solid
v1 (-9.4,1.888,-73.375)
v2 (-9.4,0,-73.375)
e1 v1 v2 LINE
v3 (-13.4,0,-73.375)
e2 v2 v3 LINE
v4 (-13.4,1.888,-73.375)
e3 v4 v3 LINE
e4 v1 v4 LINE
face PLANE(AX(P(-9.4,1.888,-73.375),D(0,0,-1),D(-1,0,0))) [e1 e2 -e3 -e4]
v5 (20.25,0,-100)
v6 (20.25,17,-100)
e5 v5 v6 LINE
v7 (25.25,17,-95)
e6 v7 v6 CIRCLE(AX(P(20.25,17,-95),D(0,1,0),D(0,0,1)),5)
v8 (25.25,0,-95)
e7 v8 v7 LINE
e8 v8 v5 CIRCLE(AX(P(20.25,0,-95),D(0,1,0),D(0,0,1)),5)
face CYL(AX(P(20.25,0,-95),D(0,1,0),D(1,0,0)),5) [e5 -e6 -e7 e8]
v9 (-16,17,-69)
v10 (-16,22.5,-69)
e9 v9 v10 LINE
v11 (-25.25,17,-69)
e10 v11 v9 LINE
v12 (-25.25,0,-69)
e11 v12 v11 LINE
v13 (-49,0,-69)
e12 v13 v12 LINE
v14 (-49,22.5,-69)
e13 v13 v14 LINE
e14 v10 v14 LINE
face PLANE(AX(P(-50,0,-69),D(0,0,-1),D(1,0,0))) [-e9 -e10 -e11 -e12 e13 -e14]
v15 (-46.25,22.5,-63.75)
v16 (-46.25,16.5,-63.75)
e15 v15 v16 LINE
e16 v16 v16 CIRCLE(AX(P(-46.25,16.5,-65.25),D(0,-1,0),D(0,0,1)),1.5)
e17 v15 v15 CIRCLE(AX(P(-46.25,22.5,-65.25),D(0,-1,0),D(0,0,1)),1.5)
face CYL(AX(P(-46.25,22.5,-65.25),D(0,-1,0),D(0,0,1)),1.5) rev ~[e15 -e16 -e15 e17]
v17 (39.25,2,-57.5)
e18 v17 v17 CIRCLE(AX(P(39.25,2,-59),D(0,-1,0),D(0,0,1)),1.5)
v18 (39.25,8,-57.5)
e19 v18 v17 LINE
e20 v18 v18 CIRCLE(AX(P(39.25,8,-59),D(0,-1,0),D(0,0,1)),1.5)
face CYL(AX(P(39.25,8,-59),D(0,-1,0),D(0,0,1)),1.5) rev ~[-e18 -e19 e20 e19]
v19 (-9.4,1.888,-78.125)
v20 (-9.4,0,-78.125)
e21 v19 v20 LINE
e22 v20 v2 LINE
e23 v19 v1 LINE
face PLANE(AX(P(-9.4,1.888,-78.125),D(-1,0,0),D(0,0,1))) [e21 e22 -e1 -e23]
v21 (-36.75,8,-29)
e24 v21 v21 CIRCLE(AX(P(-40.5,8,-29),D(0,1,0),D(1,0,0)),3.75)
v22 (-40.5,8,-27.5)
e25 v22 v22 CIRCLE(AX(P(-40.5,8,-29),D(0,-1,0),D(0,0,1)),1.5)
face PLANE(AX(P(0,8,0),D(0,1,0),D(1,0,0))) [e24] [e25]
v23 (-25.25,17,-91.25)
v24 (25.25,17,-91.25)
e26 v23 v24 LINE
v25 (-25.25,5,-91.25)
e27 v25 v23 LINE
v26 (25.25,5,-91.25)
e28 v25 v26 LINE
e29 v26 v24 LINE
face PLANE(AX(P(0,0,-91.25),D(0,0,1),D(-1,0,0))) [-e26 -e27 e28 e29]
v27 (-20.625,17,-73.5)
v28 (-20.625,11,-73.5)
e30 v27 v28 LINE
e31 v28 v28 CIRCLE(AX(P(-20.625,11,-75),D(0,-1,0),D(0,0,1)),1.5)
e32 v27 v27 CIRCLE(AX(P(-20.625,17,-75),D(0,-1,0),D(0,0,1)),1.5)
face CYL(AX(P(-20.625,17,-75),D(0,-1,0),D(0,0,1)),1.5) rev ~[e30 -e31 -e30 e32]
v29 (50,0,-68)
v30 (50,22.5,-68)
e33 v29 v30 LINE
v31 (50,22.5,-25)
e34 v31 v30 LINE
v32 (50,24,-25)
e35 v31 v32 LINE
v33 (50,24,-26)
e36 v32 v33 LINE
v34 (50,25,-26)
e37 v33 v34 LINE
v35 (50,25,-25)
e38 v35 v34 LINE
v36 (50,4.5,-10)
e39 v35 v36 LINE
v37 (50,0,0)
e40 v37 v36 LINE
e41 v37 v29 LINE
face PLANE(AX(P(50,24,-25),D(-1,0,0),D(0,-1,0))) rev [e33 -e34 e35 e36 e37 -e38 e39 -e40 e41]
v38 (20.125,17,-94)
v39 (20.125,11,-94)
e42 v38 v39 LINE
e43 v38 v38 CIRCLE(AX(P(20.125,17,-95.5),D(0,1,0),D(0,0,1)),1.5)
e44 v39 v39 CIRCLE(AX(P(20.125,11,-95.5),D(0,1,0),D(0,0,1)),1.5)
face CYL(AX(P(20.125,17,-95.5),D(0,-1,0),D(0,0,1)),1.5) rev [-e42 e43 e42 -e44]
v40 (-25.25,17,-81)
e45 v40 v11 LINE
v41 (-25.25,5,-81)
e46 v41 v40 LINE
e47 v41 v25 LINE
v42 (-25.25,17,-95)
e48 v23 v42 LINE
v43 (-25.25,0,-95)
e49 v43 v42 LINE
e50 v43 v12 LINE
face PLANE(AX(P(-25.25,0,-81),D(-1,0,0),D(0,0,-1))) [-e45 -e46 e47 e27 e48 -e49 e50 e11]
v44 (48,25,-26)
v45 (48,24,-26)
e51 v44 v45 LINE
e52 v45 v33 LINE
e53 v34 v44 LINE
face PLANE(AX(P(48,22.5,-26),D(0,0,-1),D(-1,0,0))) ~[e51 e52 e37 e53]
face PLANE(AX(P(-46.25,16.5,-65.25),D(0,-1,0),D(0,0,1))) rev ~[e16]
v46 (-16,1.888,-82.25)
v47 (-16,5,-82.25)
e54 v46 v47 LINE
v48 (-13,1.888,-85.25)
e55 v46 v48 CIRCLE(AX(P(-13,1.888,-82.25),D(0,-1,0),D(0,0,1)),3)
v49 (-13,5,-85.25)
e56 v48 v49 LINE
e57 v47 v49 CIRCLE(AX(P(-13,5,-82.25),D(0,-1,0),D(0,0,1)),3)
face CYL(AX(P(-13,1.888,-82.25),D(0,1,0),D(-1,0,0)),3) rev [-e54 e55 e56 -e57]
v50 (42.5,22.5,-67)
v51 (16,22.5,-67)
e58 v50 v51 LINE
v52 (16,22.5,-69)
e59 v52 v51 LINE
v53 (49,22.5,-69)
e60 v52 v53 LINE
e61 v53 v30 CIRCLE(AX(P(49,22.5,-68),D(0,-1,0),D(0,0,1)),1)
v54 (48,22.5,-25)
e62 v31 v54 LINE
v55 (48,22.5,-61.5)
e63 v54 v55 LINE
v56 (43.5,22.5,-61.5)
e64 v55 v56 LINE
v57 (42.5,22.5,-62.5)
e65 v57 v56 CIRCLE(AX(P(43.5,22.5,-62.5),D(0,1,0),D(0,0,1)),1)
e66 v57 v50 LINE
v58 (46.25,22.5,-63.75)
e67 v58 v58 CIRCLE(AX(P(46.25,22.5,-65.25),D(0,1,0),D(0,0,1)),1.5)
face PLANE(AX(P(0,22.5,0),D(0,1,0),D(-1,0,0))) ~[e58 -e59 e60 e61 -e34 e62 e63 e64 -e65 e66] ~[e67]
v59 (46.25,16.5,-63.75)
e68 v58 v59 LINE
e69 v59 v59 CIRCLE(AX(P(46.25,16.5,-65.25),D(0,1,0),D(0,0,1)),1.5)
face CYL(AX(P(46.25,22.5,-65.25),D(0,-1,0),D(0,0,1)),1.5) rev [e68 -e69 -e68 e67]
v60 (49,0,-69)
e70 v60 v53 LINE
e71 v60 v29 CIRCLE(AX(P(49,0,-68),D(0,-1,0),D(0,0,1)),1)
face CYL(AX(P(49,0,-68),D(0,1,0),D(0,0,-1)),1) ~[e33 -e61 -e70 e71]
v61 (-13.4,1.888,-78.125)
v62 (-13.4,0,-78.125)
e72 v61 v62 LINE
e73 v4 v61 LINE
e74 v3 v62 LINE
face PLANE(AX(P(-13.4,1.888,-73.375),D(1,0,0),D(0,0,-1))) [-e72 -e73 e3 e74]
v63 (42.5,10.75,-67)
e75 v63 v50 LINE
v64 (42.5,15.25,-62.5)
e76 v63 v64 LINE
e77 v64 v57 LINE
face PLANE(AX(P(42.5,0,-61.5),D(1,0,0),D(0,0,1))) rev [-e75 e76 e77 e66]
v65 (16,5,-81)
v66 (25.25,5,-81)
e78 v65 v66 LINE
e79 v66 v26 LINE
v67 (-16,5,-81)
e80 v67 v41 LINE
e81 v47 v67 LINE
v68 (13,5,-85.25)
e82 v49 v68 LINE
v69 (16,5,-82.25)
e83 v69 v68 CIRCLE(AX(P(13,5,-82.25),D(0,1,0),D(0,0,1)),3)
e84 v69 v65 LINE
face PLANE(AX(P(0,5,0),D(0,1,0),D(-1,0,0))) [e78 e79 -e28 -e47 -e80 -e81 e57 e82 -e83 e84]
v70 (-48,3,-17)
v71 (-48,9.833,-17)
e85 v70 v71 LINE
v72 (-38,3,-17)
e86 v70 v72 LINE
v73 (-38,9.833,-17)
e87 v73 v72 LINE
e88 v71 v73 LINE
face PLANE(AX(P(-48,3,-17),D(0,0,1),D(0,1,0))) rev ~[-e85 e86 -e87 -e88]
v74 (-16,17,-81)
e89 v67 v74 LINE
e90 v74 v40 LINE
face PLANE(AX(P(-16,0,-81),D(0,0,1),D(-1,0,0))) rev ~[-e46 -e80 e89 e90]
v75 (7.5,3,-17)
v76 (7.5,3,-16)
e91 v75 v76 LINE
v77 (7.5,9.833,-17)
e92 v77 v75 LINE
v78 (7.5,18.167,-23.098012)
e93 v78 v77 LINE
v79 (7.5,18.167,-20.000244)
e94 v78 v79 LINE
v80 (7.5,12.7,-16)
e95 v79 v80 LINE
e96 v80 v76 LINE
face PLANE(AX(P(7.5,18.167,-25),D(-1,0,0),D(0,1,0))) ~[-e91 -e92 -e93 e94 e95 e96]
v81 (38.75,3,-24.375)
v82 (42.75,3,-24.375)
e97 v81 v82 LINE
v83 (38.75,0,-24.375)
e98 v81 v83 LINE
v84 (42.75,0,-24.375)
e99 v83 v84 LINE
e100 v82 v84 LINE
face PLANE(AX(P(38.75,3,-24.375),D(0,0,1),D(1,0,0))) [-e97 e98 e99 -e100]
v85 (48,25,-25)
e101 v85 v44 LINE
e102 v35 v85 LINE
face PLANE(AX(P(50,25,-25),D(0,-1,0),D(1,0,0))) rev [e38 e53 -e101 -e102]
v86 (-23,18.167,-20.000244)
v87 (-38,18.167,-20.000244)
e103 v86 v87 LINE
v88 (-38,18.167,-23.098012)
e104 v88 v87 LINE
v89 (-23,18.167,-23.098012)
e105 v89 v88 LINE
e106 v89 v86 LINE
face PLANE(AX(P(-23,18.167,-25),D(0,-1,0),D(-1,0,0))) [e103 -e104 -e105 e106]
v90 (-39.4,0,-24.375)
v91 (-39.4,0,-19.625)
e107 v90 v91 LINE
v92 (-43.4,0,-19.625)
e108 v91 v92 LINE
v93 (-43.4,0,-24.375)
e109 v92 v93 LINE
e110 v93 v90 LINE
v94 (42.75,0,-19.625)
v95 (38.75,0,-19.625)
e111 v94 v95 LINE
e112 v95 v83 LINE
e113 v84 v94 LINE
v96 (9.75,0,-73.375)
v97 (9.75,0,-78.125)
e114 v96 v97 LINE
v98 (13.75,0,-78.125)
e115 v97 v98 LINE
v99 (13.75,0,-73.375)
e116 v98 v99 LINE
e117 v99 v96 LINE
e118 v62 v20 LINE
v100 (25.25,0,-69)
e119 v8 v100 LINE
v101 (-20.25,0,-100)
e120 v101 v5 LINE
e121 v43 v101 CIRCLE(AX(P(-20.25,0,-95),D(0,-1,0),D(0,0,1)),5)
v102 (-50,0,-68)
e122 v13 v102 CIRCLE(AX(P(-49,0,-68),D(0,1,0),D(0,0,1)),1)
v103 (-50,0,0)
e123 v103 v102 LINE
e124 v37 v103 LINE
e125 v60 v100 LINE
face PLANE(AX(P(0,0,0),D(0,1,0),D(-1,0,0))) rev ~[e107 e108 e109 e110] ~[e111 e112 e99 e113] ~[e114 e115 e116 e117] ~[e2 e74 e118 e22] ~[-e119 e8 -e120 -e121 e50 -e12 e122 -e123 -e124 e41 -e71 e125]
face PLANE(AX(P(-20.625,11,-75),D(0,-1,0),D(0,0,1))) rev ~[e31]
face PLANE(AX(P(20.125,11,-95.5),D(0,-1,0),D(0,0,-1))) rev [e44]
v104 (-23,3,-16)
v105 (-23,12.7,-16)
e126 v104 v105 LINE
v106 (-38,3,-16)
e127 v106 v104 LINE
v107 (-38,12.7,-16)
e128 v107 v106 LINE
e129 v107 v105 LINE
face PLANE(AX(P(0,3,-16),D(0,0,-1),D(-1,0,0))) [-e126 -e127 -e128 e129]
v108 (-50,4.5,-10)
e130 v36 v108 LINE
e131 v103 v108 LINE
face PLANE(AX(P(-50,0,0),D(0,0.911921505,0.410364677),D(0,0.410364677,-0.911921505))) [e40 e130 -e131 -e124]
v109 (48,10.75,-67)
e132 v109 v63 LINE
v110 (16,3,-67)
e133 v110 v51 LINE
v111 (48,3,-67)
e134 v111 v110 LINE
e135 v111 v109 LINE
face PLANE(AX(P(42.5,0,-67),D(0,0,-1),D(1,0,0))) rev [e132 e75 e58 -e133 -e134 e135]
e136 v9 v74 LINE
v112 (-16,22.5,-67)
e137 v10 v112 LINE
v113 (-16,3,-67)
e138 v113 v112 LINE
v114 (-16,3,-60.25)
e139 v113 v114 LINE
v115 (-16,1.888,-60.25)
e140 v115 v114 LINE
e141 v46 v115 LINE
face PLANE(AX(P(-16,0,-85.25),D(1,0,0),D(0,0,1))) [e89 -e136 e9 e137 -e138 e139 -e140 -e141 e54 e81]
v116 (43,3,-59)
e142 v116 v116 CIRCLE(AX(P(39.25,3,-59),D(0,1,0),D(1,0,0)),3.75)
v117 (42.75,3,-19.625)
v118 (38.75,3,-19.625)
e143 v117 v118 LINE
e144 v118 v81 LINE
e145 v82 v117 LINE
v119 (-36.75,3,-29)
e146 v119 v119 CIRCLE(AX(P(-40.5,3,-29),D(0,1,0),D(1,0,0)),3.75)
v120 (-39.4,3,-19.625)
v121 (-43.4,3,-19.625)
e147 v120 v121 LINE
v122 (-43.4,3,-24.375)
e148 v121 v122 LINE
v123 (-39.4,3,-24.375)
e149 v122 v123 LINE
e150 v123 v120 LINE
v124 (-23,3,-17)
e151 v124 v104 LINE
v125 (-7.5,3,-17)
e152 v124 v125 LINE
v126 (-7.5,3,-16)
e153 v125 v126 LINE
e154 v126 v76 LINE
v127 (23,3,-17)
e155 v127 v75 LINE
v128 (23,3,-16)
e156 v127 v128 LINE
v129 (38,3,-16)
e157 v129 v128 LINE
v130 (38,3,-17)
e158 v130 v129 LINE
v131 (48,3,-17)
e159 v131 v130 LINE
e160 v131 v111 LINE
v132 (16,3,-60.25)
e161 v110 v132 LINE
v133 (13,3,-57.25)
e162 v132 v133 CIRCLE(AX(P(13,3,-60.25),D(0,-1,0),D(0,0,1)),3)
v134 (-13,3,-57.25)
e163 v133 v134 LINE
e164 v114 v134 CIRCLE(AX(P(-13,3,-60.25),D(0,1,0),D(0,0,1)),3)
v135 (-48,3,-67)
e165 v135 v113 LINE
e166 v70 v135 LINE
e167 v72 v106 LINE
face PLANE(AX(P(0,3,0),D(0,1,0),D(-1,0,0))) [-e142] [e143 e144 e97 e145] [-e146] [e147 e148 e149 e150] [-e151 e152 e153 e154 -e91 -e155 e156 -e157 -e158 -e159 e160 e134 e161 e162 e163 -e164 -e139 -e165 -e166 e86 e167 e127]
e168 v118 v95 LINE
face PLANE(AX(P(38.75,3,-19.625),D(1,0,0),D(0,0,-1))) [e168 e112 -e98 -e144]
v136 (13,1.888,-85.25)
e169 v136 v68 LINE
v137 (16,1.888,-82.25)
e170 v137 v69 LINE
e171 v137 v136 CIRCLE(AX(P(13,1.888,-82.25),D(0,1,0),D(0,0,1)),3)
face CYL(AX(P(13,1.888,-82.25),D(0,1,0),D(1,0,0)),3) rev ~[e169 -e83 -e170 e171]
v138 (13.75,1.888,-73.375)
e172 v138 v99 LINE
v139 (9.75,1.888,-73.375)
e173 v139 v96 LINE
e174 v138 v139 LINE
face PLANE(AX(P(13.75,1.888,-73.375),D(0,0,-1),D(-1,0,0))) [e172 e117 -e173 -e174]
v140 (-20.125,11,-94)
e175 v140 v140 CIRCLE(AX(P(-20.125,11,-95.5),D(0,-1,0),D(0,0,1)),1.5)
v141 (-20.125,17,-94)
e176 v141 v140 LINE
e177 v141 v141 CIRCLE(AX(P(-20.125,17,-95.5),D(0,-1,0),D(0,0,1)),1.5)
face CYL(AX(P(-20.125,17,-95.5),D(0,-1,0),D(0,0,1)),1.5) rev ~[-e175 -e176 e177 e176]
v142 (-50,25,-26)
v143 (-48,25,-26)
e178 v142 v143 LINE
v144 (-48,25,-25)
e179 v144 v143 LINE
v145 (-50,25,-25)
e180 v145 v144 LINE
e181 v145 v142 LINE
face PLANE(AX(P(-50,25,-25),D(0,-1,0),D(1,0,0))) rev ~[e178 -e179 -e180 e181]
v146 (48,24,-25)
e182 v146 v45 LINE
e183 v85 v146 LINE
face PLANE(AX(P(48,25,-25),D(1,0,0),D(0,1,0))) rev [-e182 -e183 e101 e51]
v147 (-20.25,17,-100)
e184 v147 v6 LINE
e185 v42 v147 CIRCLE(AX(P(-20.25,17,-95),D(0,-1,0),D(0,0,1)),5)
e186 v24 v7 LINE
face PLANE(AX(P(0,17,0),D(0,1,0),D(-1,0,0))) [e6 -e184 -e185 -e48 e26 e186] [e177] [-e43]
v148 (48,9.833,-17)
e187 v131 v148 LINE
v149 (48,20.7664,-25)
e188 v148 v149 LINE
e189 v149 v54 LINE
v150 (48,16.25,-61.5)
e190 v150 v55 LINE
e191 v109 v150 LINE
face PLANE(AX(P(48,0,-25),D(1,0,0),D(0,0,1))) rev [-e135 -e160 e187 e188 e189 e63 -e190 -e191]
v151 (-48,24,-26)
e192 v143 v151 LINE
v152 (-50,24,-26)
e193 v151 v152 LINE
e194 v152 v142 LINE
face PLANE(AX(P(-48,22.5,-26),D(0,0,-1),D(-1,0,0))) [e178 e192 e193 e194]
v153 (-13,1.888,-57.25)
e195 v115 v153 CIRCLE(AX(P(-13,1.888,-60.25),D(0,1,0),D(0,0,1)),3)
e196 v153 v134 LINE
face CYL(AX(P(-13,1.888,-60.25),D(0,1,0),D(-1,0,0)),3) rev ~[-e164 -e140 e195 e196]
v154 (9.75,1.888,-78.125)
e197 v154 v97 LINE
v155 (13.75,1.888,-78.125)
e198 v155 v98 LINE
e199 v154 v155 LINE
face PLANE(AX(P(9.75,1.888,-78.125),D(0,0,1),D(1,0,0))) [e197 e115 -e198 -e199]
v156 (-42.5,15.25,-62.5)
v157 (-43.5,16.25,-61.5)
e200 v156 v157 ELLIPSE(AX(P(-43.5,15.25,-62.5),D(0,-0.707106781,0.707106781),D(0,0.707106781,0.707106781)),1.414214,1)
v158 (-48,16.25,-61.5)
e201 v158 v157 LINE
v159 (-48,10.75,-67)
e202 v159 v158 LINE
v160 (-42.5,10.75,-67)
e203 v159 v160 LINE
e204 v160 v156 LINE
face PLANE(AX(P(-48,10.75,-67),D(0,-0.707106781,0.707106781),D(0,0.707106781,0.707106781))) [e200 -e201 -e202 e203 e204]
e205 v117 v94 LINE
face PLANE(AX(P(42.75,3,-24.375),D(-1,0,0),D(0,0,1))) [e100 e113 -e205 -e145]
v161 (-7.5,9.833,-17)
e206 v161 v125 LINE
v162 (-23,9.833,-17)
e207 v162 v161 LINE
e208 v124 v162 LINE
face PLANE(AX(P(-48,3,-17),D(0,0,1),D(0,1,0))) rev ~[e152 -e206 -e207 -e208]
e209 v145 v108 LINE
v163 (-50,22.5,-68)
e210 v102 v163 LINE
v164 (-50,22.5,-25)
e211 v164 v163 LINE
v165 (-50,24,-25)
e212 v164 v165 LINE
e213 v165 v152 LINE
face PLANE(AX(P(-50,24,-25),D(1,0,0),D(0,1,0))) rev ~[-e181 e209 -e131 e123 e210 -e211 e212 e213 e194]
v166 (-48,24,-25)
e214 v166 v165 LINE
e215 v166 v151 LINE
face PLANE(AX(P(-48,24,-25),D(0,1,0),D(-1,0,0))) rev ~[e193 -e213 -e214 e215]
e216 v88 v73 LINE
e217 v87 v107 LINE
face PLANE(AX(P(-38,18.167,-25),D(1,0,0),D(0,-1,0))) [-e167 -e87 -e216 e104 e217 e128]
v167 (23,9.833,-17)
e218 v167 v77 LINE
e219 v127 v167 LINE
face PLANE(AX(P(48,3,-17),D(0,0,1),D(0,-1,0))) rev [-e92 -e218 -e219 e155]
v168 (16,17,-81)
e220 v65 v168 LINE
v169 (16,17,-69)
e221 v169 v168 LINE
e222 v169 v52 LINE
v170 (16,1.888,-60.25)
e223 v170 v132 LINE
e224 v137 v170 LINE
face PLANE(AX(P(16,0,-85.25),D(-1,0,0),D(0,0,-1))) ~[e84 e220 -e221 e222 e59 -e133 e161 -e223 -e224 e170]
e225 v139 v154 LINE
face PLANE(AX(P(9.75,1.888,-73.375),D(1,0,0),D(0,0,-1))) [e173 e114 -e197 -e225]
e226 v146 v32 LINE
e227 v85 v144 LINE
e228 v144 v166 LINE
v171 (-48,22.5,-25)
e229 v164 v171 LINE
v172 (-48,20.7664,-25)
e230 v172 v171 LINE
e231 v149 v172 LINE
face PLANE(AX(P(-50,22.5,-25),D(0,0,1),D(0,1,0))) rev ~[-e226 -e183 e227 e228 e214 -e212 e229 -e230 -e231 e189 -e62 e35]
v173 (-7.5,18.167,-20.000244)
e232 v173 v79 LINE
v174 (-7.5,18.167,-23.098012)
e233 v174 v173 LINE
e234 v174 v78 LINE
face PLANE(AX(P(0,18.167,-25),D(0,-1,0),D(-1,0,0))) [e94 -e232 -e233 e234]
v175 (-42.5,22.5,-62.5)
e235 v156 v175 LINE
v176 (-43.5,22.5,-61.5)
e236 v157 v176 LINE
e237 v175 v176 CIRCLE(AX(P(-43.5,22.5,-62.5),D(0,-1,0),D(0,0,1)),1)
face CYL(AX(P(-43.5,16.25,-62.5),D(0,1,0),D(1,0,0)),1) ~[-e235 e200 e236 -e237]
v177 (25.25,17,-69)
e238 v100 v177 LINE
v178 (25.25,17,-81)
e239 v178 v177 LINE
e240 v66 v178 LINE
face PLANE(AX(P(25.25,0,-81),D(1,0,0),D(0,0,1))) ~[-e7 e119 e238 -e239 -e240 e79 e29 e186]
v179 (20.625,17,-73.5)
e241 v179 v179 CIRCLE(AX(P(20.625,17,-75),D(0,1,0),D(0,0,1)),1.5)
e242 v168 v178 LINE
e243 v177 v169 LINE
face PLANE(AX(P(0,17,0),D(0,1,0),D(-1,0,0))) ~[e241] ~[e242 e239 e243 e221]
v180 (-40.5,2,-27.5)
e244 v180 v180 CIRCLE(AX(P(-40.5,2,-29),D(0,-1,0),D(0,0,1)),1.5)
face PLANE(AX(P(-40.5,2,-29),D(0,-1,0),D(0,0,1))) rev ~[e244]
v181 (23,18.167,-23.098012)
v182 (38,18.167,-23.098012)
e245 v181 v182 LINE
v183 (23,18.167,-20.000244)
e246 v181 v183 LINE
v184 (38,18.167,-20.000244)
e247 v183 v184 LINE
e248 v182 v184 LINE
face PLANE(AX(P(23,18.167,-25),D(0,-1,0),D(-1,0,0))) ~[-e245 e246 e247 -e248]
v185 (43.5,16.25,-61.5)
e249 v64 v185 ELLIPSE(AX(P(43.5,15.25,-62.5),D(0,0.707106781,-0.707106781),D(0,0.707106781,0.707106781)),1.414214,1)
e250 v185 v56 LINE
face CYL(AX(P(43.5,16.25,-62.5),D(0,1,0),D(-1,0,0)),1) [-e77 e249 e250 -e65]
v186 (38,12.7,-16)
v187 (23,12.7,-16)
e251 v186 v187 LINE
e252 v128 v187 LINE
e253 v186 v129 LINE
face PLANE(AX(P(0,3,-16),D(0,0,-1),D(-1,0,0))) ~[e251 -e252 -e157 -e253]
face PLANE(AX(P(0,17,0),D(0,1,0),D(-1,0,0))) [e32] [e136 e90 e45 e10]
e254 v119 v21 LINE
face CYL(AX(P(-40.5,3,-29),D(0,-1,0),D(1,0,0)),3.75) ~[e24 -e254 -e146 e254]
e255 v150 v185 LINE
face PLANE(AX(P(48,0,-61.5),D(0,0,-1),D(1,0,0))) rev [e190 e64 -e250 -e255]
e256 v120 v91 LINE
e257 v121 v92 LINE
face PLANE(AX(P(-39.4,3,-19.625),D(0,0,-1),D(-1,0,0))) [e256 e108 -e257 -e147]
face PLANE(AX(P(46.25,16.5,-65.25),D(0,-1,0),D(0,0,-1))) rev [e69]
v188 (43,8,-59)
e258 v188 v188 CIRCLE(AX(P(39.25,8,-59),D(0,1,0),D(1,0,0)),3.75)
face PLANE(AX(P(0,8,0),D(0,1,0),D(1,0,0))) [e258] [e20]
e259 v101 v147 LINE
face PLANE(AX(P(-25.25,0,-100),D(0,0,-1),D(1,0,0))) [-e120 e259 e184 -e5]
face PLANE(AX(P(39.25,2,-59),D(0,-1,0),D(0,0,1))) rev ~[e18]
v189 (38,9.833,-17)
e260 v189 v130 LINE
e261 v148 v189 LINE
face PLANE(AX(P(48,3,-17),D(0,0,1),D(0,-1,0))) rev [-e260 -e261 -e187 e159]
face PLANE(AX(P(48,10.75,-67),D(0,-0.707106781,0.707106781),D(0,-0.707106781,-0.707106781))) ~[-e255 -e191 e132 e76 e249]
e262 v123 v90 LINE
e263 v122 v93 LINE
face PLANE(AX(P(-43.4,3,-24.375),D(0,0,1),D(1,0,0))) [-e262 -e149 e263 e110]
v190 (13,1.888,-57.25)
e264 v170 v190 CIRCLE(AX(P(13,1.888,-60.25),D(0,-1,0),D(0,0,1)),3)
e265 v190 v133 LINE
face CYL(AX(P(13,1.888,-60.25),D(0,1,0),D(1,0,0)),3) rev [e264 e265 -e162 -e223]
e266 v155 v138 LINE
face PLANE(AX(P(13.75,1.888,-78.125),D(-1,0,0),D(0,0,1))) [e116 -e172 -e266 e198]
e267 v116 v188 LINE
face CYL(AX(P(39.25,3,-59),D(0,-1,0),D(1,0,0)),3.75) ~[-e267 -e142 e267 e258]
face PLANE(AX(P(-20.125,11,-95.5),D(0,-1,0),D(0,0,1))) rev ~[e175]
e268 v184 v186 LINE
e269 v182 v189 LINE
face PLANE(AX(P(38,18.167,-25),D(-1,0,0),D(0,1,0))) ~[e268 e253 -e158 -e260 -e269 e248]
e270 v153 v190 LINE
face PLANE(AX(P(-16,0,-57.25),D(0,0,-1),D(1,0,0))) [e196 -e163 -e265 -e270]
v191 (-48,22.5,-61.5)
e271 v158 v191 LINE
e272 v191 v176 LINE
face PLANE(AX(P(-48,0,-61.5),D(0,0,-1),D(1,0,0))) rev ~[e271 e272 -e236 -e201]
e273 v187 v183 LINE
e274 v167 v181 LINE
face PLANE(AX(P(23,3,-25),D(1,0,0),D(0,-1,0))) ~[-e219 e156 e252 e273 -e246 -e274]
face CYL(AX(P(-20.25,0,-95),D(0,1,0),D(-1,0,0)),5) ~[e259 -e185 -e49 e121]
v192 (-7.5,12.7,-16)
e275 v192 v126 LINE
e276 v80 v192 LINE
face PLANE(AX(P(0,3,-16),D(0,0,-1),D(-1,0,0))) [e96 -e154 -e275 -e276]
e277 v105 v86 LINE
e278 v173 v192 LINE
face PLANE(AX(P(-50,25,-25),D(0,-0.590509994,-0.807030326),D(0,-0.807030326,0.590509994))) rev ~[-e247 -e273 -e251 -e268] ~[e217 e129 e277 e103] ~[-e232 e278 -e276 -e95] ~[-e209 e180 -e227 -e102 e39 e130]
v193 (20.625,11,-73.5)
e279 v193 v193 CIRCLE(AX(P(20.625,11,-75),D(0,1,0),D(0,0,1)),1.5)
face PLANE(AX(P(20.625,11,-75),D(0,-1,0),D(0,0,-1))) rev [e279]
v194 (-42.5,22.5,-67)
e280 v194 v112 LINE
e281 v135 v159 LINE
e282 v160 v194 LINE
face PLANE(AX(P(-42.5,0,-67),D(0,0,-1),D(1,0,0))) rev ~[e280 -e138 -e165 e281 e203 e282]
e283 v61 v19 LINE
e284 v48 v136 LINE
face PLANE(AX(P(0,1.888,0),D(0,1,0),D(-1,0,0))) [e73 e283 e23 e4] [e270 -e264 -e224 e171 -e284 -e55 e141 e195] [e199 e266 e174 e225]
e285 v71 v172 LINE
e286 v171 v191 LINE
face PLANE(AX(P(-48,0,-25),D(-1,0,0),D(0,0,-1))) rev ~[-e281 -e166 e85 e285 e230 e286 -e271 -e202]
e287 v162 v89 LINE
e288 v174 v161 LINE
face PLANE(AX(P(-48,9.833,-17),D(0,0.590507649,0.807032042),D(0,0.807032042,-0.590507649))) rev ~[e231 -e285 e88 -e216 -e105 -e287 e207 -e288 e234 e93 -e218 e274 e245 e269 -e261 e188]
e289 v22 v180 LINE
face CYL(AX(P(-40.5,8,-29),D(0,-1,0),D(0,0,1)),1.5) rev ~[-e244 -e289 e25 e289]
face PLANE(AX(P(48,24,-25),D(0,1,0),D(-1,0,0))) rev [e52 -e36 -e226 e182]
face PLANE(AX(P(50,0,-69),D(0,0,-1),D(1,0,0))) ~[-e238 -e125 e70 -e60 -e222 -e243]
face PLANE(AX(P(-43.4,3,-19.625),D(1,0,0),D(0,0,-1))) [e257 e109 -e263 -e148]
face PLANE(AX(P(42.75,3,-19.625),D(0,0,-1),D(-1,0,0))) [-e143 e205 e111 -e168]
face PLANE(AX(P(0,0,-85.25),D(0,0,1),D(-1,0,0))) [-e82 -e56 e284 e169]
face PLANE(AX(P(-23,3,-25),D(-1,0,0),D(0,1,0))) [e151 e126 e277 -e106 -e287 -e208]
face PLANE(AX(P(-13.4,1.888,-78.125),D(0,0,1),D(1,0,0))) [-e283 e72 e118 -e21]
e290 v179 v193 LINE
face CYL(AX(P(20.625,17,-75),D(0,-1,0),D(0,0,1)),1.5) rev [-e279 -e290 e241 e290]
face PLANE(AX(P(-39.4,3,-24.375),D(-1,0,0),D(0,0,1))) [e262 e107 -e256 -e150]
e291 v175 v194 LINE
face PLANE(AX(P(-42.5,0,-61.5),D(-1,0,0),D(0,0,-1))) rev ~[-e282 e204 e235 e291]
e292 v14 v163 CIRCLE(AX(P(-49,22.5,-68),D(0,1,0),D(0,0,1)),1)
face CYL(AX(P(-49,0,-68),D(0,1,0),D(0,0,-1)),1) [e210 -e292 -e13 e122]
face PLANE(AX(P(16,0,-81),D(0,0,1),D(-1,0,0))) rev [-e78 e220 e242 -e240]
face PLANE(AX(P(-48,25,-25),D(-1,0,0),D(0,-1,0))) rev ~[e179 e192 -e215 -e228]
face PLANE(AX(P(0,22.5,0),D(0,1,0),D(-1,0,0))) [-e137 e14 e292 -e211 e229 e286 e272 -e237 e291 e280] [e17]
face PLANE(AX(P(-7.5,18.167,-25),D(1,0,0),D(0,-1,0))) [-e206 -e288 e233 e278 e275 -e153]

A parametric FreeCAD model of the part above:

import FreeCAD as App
import Part
import Sketcher
Q = App.Units.Quantity


def edges_at(feature, points):
    """Names of the edges that pass closest to the given points."""
    edges = feature.Shape.Edges
    near = lambda p: min(range(len(edges)), key=lambda i: edges[i].distToShape(Part.Vertex(*p))[0])
    return sorted({f"Edge{near(p) + 1}" for p in points})


def add_polygon(sketch, points):
    """Adds a closed chain of lines whose ends are joined by coincident constraints."""
    first, n = sketch.GeometryCount, len(points)
    for a, b in zip(points, points[1:] + points[:1]):
        sketch.addGeometry(Part.LineSegment(App.Vector(*a, 0), App.Vector(*b, 0)), False)
    for i in range(n):
        sketch.addConstraint(Sketcher.Constraint("Coincident", first + i, 2, first + (i + 1) % n, 1))

doc = App.newDocument("Part")
body = doc.addObject("PartDesign::Body", "Body")
body.AllowCompound = True

# Sketch on XZ plane
sketch1 = body.newObject("Sketcher::SketchObject", "Sketch")
sketch1.AttachmentSupport = (doc.getObject("XZ_Plane"), [""])
sketch1.MapMode = "FlatFace"
add_polygon(sketch1, [(-48, -25), (0, -25), (0, -57), (-16, -57), (-16, -67), (-42, -67), (-42, -62), (-48, -62)])  # lines 0-7
sketch1.addConstraint([
    Sketcher.Constraint("Horizontal", 0),
    Sketcher.Constraint("Vertical", 1),
    Sketcher.Constraint("Horizontal", 2),
    Sketcher.Constraint("Vertical", 3),
    Sketcher.Constraint("Horizontal", 4),
    Sketcher.Constraint("Vertical", 5),
    Sketcher.Constraint("Horizontal", 6),
    Sketcher.Constraint("Vertical", 7),
    Sketcher.Constraint("PointOnObject", 0, 2, -2),
    Sketcher.Constraint("Equal", 6, 5),
    Sketcher.Constraint("DistanceX", 2, 2, 2, 1, Q("16 mm")),
    Sketcher.Constraint("DistanceY", 0, 2, -1, 1, Q("25 mm")),
    Sketcher.Constraint("DistanceX", 0, 1, 0, 2, Q("48 mm")),
    Sketcher.Constraint("DistanceX", 4, 2, 4, 1, Q("26.5 mm")),
    Sketcher.Constraint("DistanceY", 7, 1, 7, 2, Q("36.5 mm")),
    Sketcher.Constraint("DistanceY", 1, 2, 1, 1, Q("32.25 mm")),
])
pad1 = body.newObject("PartDesign::Pad", "Pad")
pad1.Profile = sketch1
pad1.Length = 3
pad1.Reversed = True

# Sketch on XZ plane
sketch2 = body.newObject("Sketcher::SketchObject", "Sketch001")
sketch2.AttachmentSupport = (doc.getObject("XZ_Plane"), [""])
sketch2.MapMode = "FlatFace"
add_polygon(sketch2, [(-16, -57), (0, -57), (0, -85), (-16, -85)])  # lines 0-3
sketch2.addConstraint([
    Sketcher.Constraint("Horizontal", 0),
    Sketcher.Constraint("Vertical", 1),
    Sketcher.Constraint("Horizontal", 2),
    Sketcher.Constraint("Vertical", 3),
    Sketcher.Constraint("PointOnObject", 0, 2, -2),
    Sketcher.Constraint("DistanceX", 0, 1, 0, 2, Q("16 mm")),
    Sketcher.Constraint("DistanceY", 1, 2, 1, 1, Q("28 mm")),
    Sketcher.Constraint("DistanceY", 0, 2, -1, 1, Q("57.25 mm")),
])
pad2 = body.newObject("PartDesign::Pad", "Pad001")
pad2.Profile = sketch2
pad2.Length = 1.888
pad2.Reversed = True

# Sketch on XZ plane
sketch3 = body.newObject("Sketcher::SketchObject", "Sketch002")
sketch3.AttachmentSupport = (doc.getObject("XZ_Plane"), [""])
sketch3.MapMode = "FlatFace"
add_polygon(sketch3, [(-50, 0), (0, 0), (0, -25), (-48, -25), (-48, -61.5), (-42.5, -61.5), (-42.5, -67), (-16, -67), (-16, -69), (-50, -69)])  # lines 0-9
sketch3.addConstraint([
    Sketcher.Constraint("Horizontal", 0),
    Sketcher.Constraint("Vertical", 1),
    Sketcher.Constraint("Horizontal", 2),
    Sketcher.Constraint("Vertical", 3),
    Sketcher.Constraint("Horizontal", 4),
    Sketcher.Constraint("Vertical", 5),
    Sketcher.Constraint("Horizontal", 6),
    Sketcher.Constraint("Vertical", 7),
    Sketcher.Constraint("Horizontal", 8),
    Sketcher.Constraint("Vertical", 9),
    Sketcher.Constraint("Coincident", 0, 2, -1, 1),
    Sketcher.Constraint("Equal", 4, 5),
    Sketcher.Constraint("DistanceX", 0, 1, 0, 2, Q("50 mm")),
    Sketcher.Constraint("DistanceY", 1, 2, 1, 1, Q("25 mm")),
    Sketcher.Constraint("DistanceY", 7, 2, 7, 1, Q("2 mm")),
    Sketcher.Constraint("DistanceY", 9, 1, 9, 2, Q("69 mm")),
    Sketcher.Constraint("DistanceX", 6, 2, -1, 1, Q("16 mm")),
    Sketcher.Constraint("DistanceX", 8, 2, 3, 2, Q("2 mm")),
    Sketcher.Constraint("DistanceY", 7, 2, 4, 2, Q("7.5 mm")),
])
pad3 = body.newObject("PartDesign::Pad", "Pad002")
pad3.Profile = sketch3
pad3.Length = 22.5
pad3.Reversed = True

# Sketch on XZ plane
sketch4 = body.newObject("Sketcher::SketchObject", "Sketch003")
sketch4.AttachmentSupport = (doc.getObject("XZ_Plane"), [""])
sketch4.MapMode = "FlatFace"
add_polygon(sketch4, [(-25, -81), (-25, -69), (-16, -69), (-16, -81)])  # lines 0-3
add_polygon(sketch4, [(-25, -91), (0, -91), (0, -100), (-25, -100)])  # lines 4-7
sketch4.addConstraint([
    Sketcher.Constraint("Vertical", 0),
    Sketcher.Constraint("Horizontal", 1),
    Sketcher.Constraint("Vertical", 2),
    Sketcher.Constraint("Horizontal", 3),
    Sketcher.Constraint("Horizontal", 4),
    Sketcher.Constraint("Vertical", 5),
    Sketcher.Constraint("Horizontal", 6),
    Sketcher.Constraint("Vertical", 7),
    Sketcher.Constraint("PointOnObject", 4, 2, -2),
    Sketcher.Constraint("Vertical", 3, 2, 6, 2),
    Sketcher.Constraint("DistanceY", 0, 1, 0, 2, Q("12 mm")),
    Sketcher.Constraint("DistanceY", 0, 2, -1, 1, Q("69 mm")),
    Sketcher.Constraint("DistanceX", 1, 2, -1, 1, Q("16 mm")),
    Sketcher.Constraint("DistanceX", 4, 1, 4, 2, Q("25.25 mm")),
    Sketcher.Constraint("DistanceY", 5, 2, 5, 1, Q("8.75 mm")),
    Sketcher.Constraint("DistanceY", 4, 2, 2, 2, Q("10.25 mm")),
])
pad4 = body.newObject("PartDesign::Pad", "Pad003")
pad4.Profile = sketch4
pad4.Length = 17
pad4.Reversed = True

# Sketch on XZ plane
sketch5 = body.newObject("Sketcher::SketchObject", "Sketch004")
sketch5.AttachmentSupport = (doc.getObject("XZ_Plane"), [""])
sketch5.MapMode = "FlatFace"
add_polygon(sketch5, [(-16, -85.2), (0, -85.2), (0, -91.2), (-25.2, -91.2), (-25.2, -81), (-16, -81)])  # lines 0-5
sketch5.addConstraint([
    Sketcher.Constraint("Horizontal", 0),
    Sketcher.Constraint("Vertical", 1),
    Sketcher.Constraint("Horizontal", 2),
    Sketcher.Constraint("Vertical", 3),
    Sketcher.Constraint("Horizontal", 4),
    Sketcher.Constraint("Vertical", 5),
    Sketcher.Constraint("PointOnObject", 0, 2, -2),
    Sketcher.Constraint("DistanceX", 0, 1, 0, 2, Q("16 mm")),
    Sketcher.Constraint("DistanceY", 1, 2, 1, 1, Q("6 mm")),
    Sketcher.Constraint("DistanceX", 2, 2, 2, 1, Q("25.25 mm")),
    Sketcher.Constraint("DistanceY", 3, 1, 3, 2, Q("10.25 mm")),
    Sketcher.Constraint("DistanceY", 3, 2, -1, 1, Q("81 mm")),
])
pad5 = body.newObject("PartDesign::Pad", "Pad004")
pad5.Profile = sketch5
pad5.Length = 5
pad5.Reversed = True

# Sketch on YZ plane
sketch6 = body.newObject("Sketcher::SketchObject", "Sketch005")
sketch6.AttachmentSupport = (doc.getObject("YZ_Plane"), [""])
sketch6.MapMode = "FlatFace"
sketch6.AttachmentOffset = App.Placement(App.Vector(0, 0, -48), App.Rotation())
add_polygon(sketch6, [(3, -62), (3, -67), (11, -67), (16, -62)])  # lines 0-3
sketch6.addConstraint([
    Sketcher.Constraint("Vertical", 0),
    Sketcher.Constraint("Horizontal", 1),
    Sketcher.Constraint("Horizontal", 3),
    Sketcher.Constraint("Angle", 2, Q("45 deg")),
    Sketcher.Constraint("DistanceY", 0, 2, 0, 1, Q("5.5 mm")),
    Sketcher.Constraint("DistanceX", -1, 1, 0, 2, Q("3 mm")),
    Sketcher.Constraint("DistanceY", 0, 2, -1, 1, Q("67 mm")),
    Sketcher.Constraint("DistanceX", 1, 1, 1, 2, Q("7.75 mm")),
])
pocket1 = body.newObject("PartDesign::Pocket", "Pocket")
pocket1.Profile = sketch6
pocket1.Length = 5.5
pocket1.Reversed = True

# Sketch on YZ plane
sketch7 = body.newObject("Sketcher::SketchObject", "Sketch006")
sketch7.AttachmentSupport = (doc.getObject("YZ_Plane"), [""])
sketch7.MapMode = "FlatFace"
sketch7.AttachmentOffset = App.Placement(App.Vector(0, 0, -50), App.Rotation())
add_polygon(sketch7, [(4, -10), (0, 0), (22, 0), (22, -23)])  # lines 0-3
sketch7.addConstraint([
    Sketcher.Constraint("Horizontal", 1),
    Sketcher.Constraint("Vertical", 2),
    Sketcher.Constraint("Coincident", 0, 2, -1, 1),
    Sketcher.Constraint("DistanceY", 3, 2, -1, 1, Q("10 mm")),
    Sketcher.Constraint("DistanceX", -1, 1, 3, 2, Q("4.5 mm")),
    Sketcher.Constraint("DistanceX", 1, 1, 1, 2, Q("22.5 mm")),
    Sketcher.Constraint("Distance", 3, Q("22.304 mm")),
])
pocket2 = body.newObject("PartDesign::Pocket", "Pocket001")
pocket2.Profile = sketch7
pocket2.Type = "ThroughAll"
pocket2.Reversed = True

# Sketch on YZ plane
sketch8 = body.newObject("Sketcher::SketchObject", "Sketch007")
sketch8.AttachmentSupport = (doc.getObject("YZ_Plane"), [""])
sketch8.MapMode = "FlatFace"
sketch8.AttachmentOffset = App.Placement(App.Vector(0, 0, -50), App.Rotation())
add_polygon(sketch8, [(22.5, -25), (22.5, -23.2), (25, -25)])  # lines 0-2
sketch8.addConstraint([
    Sketcher.Constraint("Vertical", 0),
    Sketcher.Constraint("Horizontal", 2),
    Sketcher.Constraint("DistanceX", -1, 1, 1, 2, Q("25 mm")),
    Sketcher.Constraint("DistanceY", 1, 2, -1, 1, Q("25 mm")),
    Sketcher.Constraint("DistanceX", 2, 2, 2, 1, Q("2.5 mm")),
    Sketcher.Constraint("DistanceY", 0, 1, 0, 2, Q("1.8293 mm")),
])
pad6 = body.newObject("PartDesign::Pad", "Pad005")
pad6.Profile = sketch8
pad6.Length = 50

# Sketch on XY plane
sketch9 = body.newObject("Sketcher::SketchObject", "Sketch008")
sketch9.AttachmentSupport = (doc.getObject("XY_Plane"), [""])
sketch9.MapMode = "FlatFace"
sketch9.AttachmentOffset = App.Placement(App.Vector(0, 0, -25), App.Rotation())
add_polygon(sketch9, [(-38, 18), (-23, 18), (-23, 3), (-38, 3)])  # lines 0-3
add_polygon(sketch9, [(-8, 18), (0, 18), (0, 3), (-8, 3)])  # lines 4-7
sketch9.addConstraint([
    Sketcher.Constraint("Horizontal", 0),
    Sketcher.Constraint("Vertical", 1),
    Sketcher.Constraint("Horizontal", 2),
    Sketcher.Constraint("Vertical", 3),
    Sketcher.Constraint("Horizontal", 4),
    Sketcher.Constraint("Vertical", 5),
    Sketcher.Constraint("Horizontal", 6),
    Sketcher.Constraint("Vertical", 7),
    Sketcher.Constraint("PointOnObject", 4, 2, -2),
    Sketcher.Constraint("Horizontal", 3, 2, 4, 2),
    Sketcher.Constraint("Horizontal", 2, 2, 5, 2),
    Sketcher.Constraint("DistanceX", 0, 1, 0, 2, Q("15 mm")),
    Sketcher.Constraint("DistanceX", 4, 1, 4, 2, Q("7.5 mm")),
    Sketcher.Constraint("DistanceY", -1, 1, 1, 2, Q("3 mm")),
    Sketcher.Constraint("DistanceX", 1, 2, 6, 2, Q("15.5 mm")),
    Sketcher.Constraint("DistanceY", 1, 2, 1, 1, Q("15.167 mm")),
])
pocket3 = body.newObject("PartDesign::Pocket", "Pocket002")
pocket3.Profile = sketch9
pocket3.Length = 9
pocket3.Reversed = True

# Sketch on YZ plane
sketch10 = body.newObject("Sketcher::SketchObject", "Sketch009")
sketch10.AttachmentSupport = (doc.getObject("YZ_Plane"), [""])
sketch10.MapMode = "FlatFace"
sketch10.AttachmentOffset = App.Placement(App.Vector(0, 0, -48), App.Rotation())
add_polygon(sketch10, [(3, -25), (21, -25), (10, -17), (3, -17)])  # lines 0-3
sketch10.addConstraint([
    Sketcher.Constraint("Horizontal", 0),
    Sketcher.Constraint("Horizontal", 2),
    Sketcher.Constraint("Vertical", 3),
    Sketcher.Constraint("DistanceY", 3, 2, 3, 1, Q("8 mm")),
    Sketcher.Constraint("DistanceY", 0, 2, -1, 1, Q("25 mm")),
    Sketcher.Constraint("DistanceX", -1, 1, 2, 2, Q("3 mm")),
    Sketcher.Constraint("DistanceX", 2, 2, 2, 1, Q("6.833 mm")),
    Sketcher.Constraint("DistanceX", 0, 1, 0, 2, Q("17.7664 mm")),
])
pocket4 = body.newObject("PartDesign::Pocket", "Pocket003")
pocket4.Profile = sketch10
pocket4.Type = "ThroughAll"
pocket4.Reversed = True

# Sketch on XY plane
sketch11 = body.newObject("Sketcher::SketchObject", "Sketch010")
sketch11.AttachmentSupport = (doc.getObject("XY_Plane"), [""])
sketch11.MapMode = "FlatFace"
sketch11.AttachmentOffset = App.Placement(App.Vector(0, 0, -25), App.Rotation())
add_polygon(sketch11, [(-48, 24), (-50, 24), (-50, 25), (-48, 25)])  # lines 0-3
sketch11.addConstraint([
    Sketcher.Constraint("Horizontal", 0),
    Sketcher.Constraint("Vertical", 1),
    Sketcher.Constraint("Horizontal", 2),
    Sketcher.Constraint("Vertical", 3),
    Sketcher.Constraint("DistanceY", 1, 1, 1, 2, Q("1 mm")),
    Sketcher.Constraint("DistanceX", 0, 2, 0, 1, Q("2 mm")),
    Sketcher.Constraint("DistanceX", 0, 2, -1, 1, Q("50 mm")),
    Sketcher.Constraint("DistanceY", -1, 1, 0, 2, Q("24 mm")),
])
pad7 = body.newObject("PartDesign::Pad", "Pad006")
pad7.Profile = sketch11
pad7.Length = 1
pad7.Reversed = True

# Sketch on XZ plane
sketch12 = body.newObject("Sketcher::SketchObject", "Sketch011")
sketch12.AttachmentSupport = (doc.getObject("XZ_Plane"), [""])
sketch12.MapMode = "FlatFace"
sketch12.AttachmentOffset = App.Placement(App.Vector(0, 0, -22.5), App.Rotation())
sketch12.addGeometry(Part.Circle(App.Vector(-46.2, -65.2, 0), App.Vector(0, 0, 1), 1.5), False)
sketch12.addConstraint([
    Sketcher.Constraint("Diameter", 0, Q("3 mm")),
    Sketcher.Constraint("DistanceX", 0, 3, -1, 1, Q("46.25 mm")),
    Sketcher.Constraint("DistanceY", 0, 3, -1, 1, Q("65.25 mm")),
])
doc.recompute()
hole = body.newObject("PartDesign::Hole", "Hole")
hole.Profile = sketch12
hole.ThreadType = "None"
hole.Diameter = 3
hole.DepthType = "Dimension"
hole.Depth = 6
hole.DrillPoint = "Flat"
hole.Reversed = True

# Sketch on XZ plane
sketch13 = body.newObject("Sketcher::SketchObject", "Sketch012")
sketch13.AttachmentSupport = (doc.getObject("XZ_Plane"), [""])
sketch13.MapMode = "FlatFace"
sketch13.AttachmentOffset = App.Placement(App.Vector(0, 0, -17), App.Rotation())
sketch13.addGeometry(Part.Circle(App.Vector(-20.6, -75, 0), App.Vector(0, 0, 1), 1.5), False)
sketch13.addConstraint([
    Sketcher.Constraint("Diameter", 0, Q("3 mm")),
    Sketcher.Constraint("DistanceY", 0, 3, -1, 1, Q("75 mm")),
    Sketcher.Constraint("DistanceX", 0, 3, -1, 1, Q("20.625 mm")),
])
doc.recompute()
hole2 = body.newObject("PartDesign::Hole", "Hole001")
hole2.Profile = sketch13
hole2.ThreadType = "None"
hole2.Diameter = 3
hole2.DepthType = "Dimension"
hole2.Depth = 6
hole2.DrillPoint = "Flat"
hole2.Reversed = True

# Sketch on XZ plane
sketch14 = body.newObject("Sketcher::SketchObject", "Sketch013")
sketch14.AttachmentSupport = (doc.getObject("XZ_Plane"), [""])
sketch14.MapMode = "FlatFace"
sketch14.AttachmentOffset = App.Placement(App.Vector(0, 0, -17), App.Rotation())
sketch14.addGeometry(Part.Circle(App.Vector(-20.1, -95.5, 0), App.Vector(0, 0, 1), 1.5), False)
sketch14.addConstraint([
    Sketcher.Constraint("Diameter", 0, Q("3 mm")),
    Sketcher.Constraint("DistanceY", 0, 3, -1, 1, Q("95.5 mm")),
    Sketcher.Constraint("DistanceX", 0, 3, -1, 1, Q("20.125 mm")),
])
doc.recompute()
hole3 = body.newObject("PartDesign::Hole", "Hole002")
hole3.Profile = sketch14
hole3.ThreadType = "None"
hole3.Diameter = 3
hole3.DepthType = "Dimension"
hole3.Depth = 6
hole3.DrillPoint = "Flat"
hole3.Reversed = True
doc.recompute()

fillet = body.newObject("PartDesign::Fillet", "Fillet")
fillet.Base = (hole3, edges_at(hole3, [(-16, 2.444, -57.25), (-16, 3.444, -85.25)]))
fillet.Radius = 3
doc.recompute()

fillet2 = body.newObject("PartDesign::Fillet", "Fillet001")
fillet2.Base = (fillet, edges_at(fillet, [(-42.5, 19.375, -61.5), (-50, 11.25, -69)]))
fillet2.Radius = 1
doc.recompute()

fillet3 = body.newObject("PartDesign::Fillet", "Fillet002")
fillet3.Base = (fillet2, edges_at(fillet2, [(-25.25, 8.5, -100)]))
fillet3.Radius = 5
doc.recompute()

mirrored = body.newObject("PartDesign::Mirrored", "Mirrored")
mirrored.TransformMode = "Transform body"
mirrored.MirrorPlane = (doc.getObject("YZ_Plane"), [""])
body.Tip = mirrored

# Sketch on XZ plane
sketch15 = body.newObject("Sketcher::SketchObject", "Sketch014")
sketch15.AttachmentSupport = (doc.getObject("XZ_Plane"), [""])
sketch15.MapMode = "FlatFace"
sketch15.AttachmentOffset = App.Placement(App.Vector(0, 0, -1.888), App.Rotation())
add_polygon(sketch15, [(-13.4, -73.4), (-9.4, -73.4), (-9.4, -78.1), (-13.4, -78.1)])  # lines 0-3
add_polygon(sketch15, [(9.8, -73.4), (13.8, -73.4), (13.8, -78.1), (9.8, -78.1)])  # lines 4-7
sketch15.addConstraint([
    Sketcher.Constraint("Horizontal", 0),
    Sketcher.Constraint("Vertical", 1),
    Sketcher.Constraint("Horizontal", 2),
    Sketcher.Constraint("Vertical", 3),
    Sketcher.Constraint("Horizontal", 4),
    Sketcher.Constraint("Vertical", 5),
    Sketcher.Constraint("Horizontal", 6),
    Sketcher.Constraint("Vertical", 7),
    Sketcher.Constraint("Horizontal", 3, 2, 4, 2),
    Sketcher.Constraint("Horizontal", 2, 2, 5, 2),
    Sketcher.Constraint("Equal", 2, 4),
    Sketcher.Constraint("DistanceX", 0, 1, 0, 2, Q("4 mm")),
    Sketcher.Constraint("DistanceY", 1, 2, 1, 1, Q("4.75 mm")),
    Sketcher.Constraint("DistanceX", 0, 2, -1, 1, Q("9.4 mm")),
    Sketcher.Constraint("DistanceX", -1, 1, 4, 2, Q("13.75 mm")),
    Sketcher.Constraint("DistanceY", 0, 2, -1, 1, Q("73.375 mm")),
])
pocket5 = body.newObject("PartDesign::Pocket", "Pocket004")
pocket5.Profile = sketch15
pocket5.Type = "ThroughAll"
pocket5.Reversed = True

# Sketch on XZ plane
sketch16 = body.newObject("Sketcher::SketchObject", "Sketch015")
sketch16.AttachmentSupport = (doc.getObject("XZ_Plane"), [""])
sketch16.MapMode = "FlatFace"
sketch16.AttachmentOffset = App.Placement(App.Vector(0, 0, -3), App.Rotation())
add_polygon(sketch16, [(-43.4, -19.6), (-39.4, -19.6), (-39.4, -24.4), (-43.4, -24.4)])  # lines 0-3
add_polygon(sketch16, [(38.8, -19.6), (42.8, -19.6), (42.8, -24.4), (38.8, -24.4)])  # lines 4-7
sketch16.addConstraint([
    Sketcher.Constraint("Horizontal", 0),
    Sketcher.Constraint("Vertical", 1),
    Sketcher.Constraint("Horizontal", 2),
    Sketcher.Constraint("Vertical", 3),
    Sketcher.Constraint("Horizontal", 4),
    Sketcher.Constraint("Vertical", 5),
    Sketcher.Constraint("Horizontal", 6),
    Sketcher.Constraint("Vertical", 7),
    Sketcher.Constraint("Horizontal", 3, 2, 4, 2),
    Sketcher.Constraint("Horizontal", 2, 2, 5, 2),
    Sketcher.Constraint("Equal", 2, 4),
    Sketcher.Constraint("DistanceX", 0, 1, 0, 2, Q("4 mm")),
    Sketcher.Constraint("DistanceY", 1, 2, 1, 1, Q("4.75 mm")),
    Sketcher.Constraint("DistanceX", 0, 2, -1, 1, Q("39.4 mm")),
    Sketcher.Constraint("DistanceX", -1, 1, 4, 2, Q("42.75 mm")),
    Sketcher.Constraint("DistanceY", 0, 2, -1, 1, Q("19.625 mm")),
])
pocket6 = body.newObject("PartDesign::Pocket", "Pocket005")
pocket6.Profile = sketch16
pocket6.Type = "ThroughAll"
pocket6.Reversed = True

# Sketch on XZ plane
sketch17 = body.newObject("Sketcher::SketchObject", "Sketch016")
sketch17.AttachmentSupport = (doc.getObject("XZ_Plane"), [""])
sketch17.MapMode = "FlatFace"
sketch17.AttachmentOffset = App.Placement(App.Vector(0, 0, -3), App.Rotation())
sketch17.addGeometry([
    Part.Circle(App.Vector(39.2, -59, 0), App.Vector(0, 0, 1), 3.8),
    Part.Circle(App.Vector(-40.5, -29, 0), App.Vector(0, 0, 1), 3.8),
], False)
sketch17.addConstraint([
    Sketcher.Constraint("Equal", 0, 1),
    Sketcher.Constraint("Diameter", 0, Q("7.5 mm")),
    Sketcher.Constraint("DistanceY", 0, 3, -1, 1, Q("59 mm")),
    Sketcher.Constraint("DistanceY", 1, 3, -1, 1, Q("29 mm")),
    Sketcher.Constraint("DistanceX", 1, 3, -1, 1, Q("40.5 mm")),
    Sketcher.Constraint("DistanceX", -1, 1, 0, 3, Q("39.25 mm")),
])
pad8 = body.newObject("PartDesign::Pad", "Pad007")
pad8.Profile = sketch17
pad8.Length = 5
pad8.Reversed = True

# Sketch on XZ plane
sketch18 = body.newObject("Sketcher::SketchObject", "Sketch017")
sketch18.AttachmentSupport = (doc.getObject("XZ_Plane"), [""])
sketch18.MapMode = "FlatFace"
sketch18.AttachmentOffset = App.Placement(App.Vector(0, 0, -8), App.Rotation())
sketch18.addGeometry(Part.Circle(App.Vector(39.2, -59, 0), App.Vector(0, 0, 1), 1.5), False)
sketch18.addConstraint([
    Sketcher.Constraint("Diameter", 0, Q("3 mm")),
    Sketcher.Constraint("DistanceY", 0, 3, -1, 1, Q("59 mm")),
    Sketcher.Constraint("DistanceX", -1, 1, 0, 3, Q("39.25 mm")),
])
doc.recompute()
hole4 = body.newObject("PartDesign::Hole", "Hole003")
hole4.Profile = sketch18
hole4.ThreadType = "None"
hole4.Diameter = 3
hole4.DepthType = "Dimension"
hole4.Depth = 6
hole4.DrillPoint = "Flat"
hole4.Reversed = True

# Sketch on XZ plane
sketch19 = body.newObject("Sketcher::SketchObject", "Sketch018")
sketch19.AttachmentSupport = (doc.getObject("XZ_Plane"), [""])
sketch19.MapMode = "FlatFace"
sketch19.AttachmentOffset = App.Placement(App.Vector(0, 0, -8), App.Rotation())
sketch19.addGeometry(Part.Circle(App.Vector(-40.5, -29, 0), App.Vector(0, 0, 1), 1.5), False)
sketch19.addConstraint([
    Sketcher.Constraint("Diameter", 0, Q("3 mm")),
    Sketcher.Constraint("DistanceY", 0, 3, -1, 1, Q("29 mm")),
    Sketcher.Constraint("DistanceX", 0, 3, -1, 1, Q("40.5 mm")),
])
doc.recompute()
hole5 = body.newObject("PartDesign::Hole", "Hole004")
hole5.Profile = sketch19
hole5.ThreadType = "None"
hole5.Diameter = 3
hole5.DepthType = "Dimension"
hole5.Depth = 6
hole5.DrillPoint = "Flat"
hole5.Reversed = True

doc.recompute()
